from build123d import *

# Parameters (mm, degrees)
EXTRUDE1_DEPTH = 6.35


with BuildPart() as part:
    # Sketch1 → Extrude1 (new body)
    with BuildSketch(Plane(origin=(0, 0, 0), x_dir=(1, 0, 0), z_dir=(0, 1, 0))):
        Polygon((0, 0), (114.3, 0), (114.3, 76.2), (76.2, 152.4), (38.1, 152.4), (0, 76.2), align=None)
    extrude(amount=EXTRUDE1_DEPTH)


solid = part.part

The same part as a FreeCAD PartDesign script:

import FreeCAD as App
import Part
import Sketcher
from FreeCAD import Vector
Q = App.Units.Quantity


def add_polygon(sketch, points):
    """Adds a closed chain of lines whose ends are joined by coincident constraints."""
    first, n = sketch.GeometryCount, len(points)
    for a, b in zip(points, points[1:] + points[:1]):
        sketch.addGeometry(Part.LineSegment(App.Vector(*a, 0), App.Vector(*b, 0)), False)
    for i in range(n):
        sketch.addConstraint(Sketcher.Constraint("Coincident", first + i, 2, first + (i + 1) % n, 1))

doc = App.newDocument("Part")
body = doc.addObject("PartDesign::Body", "Body")

# Sketch on XZ plane
sketch1 = doc.addObject("Sketcher::SketchObject", "Sketch")
body.addObject(sketch1)
sketch1.AttachmentSupport = (doc.XZ_Plane, [""])
sketch1.MapMode = "FlatFace"
add_polygon(sketch1, [(0, 0), (114, 0), (114, -76), (76, -152), (38, -152), (0, -76)])  # lines 0-5
sketch1.addConstraint([
    Sketcher.Constraint("Horizontal", 0),
    Sketcher.Constraint("Vertical", 1),
    Sketcher.Constraint("Horizontal", 3),
    Sketcher.Constraint("Vertical", 5),
    Sketcher.Constraint("Coincident", 5, 2, -1, 1),
    Sketcher.Constraint("Horizontal", 1, 2, 4, 2),
    Sketcher.Constraint("Equal", 2, 4),
    Sketcher.Constraint("DistanceY", 1, 2, 1, 1, Q("3 in")),
    Sketcher.Constraint("DistanceX", 0, 1, 0, 2, Q("4.5 in")),
    Sketcher.Constraint("DistanceX", 3, 2, 3, 1, Q("1.5 in")),
    Sketcher.Constraint("DistanceY", 2, 2, -1, 1, Q("6 in")),
])
pad1 = doc.addObject("PartDesign::Pad", "Pad")
body.addObject(pad1)
pad1.Profile = sketch1
pad1.Length = Q("0.25 in")
pad1.Reversed = True

doc.recompute()
